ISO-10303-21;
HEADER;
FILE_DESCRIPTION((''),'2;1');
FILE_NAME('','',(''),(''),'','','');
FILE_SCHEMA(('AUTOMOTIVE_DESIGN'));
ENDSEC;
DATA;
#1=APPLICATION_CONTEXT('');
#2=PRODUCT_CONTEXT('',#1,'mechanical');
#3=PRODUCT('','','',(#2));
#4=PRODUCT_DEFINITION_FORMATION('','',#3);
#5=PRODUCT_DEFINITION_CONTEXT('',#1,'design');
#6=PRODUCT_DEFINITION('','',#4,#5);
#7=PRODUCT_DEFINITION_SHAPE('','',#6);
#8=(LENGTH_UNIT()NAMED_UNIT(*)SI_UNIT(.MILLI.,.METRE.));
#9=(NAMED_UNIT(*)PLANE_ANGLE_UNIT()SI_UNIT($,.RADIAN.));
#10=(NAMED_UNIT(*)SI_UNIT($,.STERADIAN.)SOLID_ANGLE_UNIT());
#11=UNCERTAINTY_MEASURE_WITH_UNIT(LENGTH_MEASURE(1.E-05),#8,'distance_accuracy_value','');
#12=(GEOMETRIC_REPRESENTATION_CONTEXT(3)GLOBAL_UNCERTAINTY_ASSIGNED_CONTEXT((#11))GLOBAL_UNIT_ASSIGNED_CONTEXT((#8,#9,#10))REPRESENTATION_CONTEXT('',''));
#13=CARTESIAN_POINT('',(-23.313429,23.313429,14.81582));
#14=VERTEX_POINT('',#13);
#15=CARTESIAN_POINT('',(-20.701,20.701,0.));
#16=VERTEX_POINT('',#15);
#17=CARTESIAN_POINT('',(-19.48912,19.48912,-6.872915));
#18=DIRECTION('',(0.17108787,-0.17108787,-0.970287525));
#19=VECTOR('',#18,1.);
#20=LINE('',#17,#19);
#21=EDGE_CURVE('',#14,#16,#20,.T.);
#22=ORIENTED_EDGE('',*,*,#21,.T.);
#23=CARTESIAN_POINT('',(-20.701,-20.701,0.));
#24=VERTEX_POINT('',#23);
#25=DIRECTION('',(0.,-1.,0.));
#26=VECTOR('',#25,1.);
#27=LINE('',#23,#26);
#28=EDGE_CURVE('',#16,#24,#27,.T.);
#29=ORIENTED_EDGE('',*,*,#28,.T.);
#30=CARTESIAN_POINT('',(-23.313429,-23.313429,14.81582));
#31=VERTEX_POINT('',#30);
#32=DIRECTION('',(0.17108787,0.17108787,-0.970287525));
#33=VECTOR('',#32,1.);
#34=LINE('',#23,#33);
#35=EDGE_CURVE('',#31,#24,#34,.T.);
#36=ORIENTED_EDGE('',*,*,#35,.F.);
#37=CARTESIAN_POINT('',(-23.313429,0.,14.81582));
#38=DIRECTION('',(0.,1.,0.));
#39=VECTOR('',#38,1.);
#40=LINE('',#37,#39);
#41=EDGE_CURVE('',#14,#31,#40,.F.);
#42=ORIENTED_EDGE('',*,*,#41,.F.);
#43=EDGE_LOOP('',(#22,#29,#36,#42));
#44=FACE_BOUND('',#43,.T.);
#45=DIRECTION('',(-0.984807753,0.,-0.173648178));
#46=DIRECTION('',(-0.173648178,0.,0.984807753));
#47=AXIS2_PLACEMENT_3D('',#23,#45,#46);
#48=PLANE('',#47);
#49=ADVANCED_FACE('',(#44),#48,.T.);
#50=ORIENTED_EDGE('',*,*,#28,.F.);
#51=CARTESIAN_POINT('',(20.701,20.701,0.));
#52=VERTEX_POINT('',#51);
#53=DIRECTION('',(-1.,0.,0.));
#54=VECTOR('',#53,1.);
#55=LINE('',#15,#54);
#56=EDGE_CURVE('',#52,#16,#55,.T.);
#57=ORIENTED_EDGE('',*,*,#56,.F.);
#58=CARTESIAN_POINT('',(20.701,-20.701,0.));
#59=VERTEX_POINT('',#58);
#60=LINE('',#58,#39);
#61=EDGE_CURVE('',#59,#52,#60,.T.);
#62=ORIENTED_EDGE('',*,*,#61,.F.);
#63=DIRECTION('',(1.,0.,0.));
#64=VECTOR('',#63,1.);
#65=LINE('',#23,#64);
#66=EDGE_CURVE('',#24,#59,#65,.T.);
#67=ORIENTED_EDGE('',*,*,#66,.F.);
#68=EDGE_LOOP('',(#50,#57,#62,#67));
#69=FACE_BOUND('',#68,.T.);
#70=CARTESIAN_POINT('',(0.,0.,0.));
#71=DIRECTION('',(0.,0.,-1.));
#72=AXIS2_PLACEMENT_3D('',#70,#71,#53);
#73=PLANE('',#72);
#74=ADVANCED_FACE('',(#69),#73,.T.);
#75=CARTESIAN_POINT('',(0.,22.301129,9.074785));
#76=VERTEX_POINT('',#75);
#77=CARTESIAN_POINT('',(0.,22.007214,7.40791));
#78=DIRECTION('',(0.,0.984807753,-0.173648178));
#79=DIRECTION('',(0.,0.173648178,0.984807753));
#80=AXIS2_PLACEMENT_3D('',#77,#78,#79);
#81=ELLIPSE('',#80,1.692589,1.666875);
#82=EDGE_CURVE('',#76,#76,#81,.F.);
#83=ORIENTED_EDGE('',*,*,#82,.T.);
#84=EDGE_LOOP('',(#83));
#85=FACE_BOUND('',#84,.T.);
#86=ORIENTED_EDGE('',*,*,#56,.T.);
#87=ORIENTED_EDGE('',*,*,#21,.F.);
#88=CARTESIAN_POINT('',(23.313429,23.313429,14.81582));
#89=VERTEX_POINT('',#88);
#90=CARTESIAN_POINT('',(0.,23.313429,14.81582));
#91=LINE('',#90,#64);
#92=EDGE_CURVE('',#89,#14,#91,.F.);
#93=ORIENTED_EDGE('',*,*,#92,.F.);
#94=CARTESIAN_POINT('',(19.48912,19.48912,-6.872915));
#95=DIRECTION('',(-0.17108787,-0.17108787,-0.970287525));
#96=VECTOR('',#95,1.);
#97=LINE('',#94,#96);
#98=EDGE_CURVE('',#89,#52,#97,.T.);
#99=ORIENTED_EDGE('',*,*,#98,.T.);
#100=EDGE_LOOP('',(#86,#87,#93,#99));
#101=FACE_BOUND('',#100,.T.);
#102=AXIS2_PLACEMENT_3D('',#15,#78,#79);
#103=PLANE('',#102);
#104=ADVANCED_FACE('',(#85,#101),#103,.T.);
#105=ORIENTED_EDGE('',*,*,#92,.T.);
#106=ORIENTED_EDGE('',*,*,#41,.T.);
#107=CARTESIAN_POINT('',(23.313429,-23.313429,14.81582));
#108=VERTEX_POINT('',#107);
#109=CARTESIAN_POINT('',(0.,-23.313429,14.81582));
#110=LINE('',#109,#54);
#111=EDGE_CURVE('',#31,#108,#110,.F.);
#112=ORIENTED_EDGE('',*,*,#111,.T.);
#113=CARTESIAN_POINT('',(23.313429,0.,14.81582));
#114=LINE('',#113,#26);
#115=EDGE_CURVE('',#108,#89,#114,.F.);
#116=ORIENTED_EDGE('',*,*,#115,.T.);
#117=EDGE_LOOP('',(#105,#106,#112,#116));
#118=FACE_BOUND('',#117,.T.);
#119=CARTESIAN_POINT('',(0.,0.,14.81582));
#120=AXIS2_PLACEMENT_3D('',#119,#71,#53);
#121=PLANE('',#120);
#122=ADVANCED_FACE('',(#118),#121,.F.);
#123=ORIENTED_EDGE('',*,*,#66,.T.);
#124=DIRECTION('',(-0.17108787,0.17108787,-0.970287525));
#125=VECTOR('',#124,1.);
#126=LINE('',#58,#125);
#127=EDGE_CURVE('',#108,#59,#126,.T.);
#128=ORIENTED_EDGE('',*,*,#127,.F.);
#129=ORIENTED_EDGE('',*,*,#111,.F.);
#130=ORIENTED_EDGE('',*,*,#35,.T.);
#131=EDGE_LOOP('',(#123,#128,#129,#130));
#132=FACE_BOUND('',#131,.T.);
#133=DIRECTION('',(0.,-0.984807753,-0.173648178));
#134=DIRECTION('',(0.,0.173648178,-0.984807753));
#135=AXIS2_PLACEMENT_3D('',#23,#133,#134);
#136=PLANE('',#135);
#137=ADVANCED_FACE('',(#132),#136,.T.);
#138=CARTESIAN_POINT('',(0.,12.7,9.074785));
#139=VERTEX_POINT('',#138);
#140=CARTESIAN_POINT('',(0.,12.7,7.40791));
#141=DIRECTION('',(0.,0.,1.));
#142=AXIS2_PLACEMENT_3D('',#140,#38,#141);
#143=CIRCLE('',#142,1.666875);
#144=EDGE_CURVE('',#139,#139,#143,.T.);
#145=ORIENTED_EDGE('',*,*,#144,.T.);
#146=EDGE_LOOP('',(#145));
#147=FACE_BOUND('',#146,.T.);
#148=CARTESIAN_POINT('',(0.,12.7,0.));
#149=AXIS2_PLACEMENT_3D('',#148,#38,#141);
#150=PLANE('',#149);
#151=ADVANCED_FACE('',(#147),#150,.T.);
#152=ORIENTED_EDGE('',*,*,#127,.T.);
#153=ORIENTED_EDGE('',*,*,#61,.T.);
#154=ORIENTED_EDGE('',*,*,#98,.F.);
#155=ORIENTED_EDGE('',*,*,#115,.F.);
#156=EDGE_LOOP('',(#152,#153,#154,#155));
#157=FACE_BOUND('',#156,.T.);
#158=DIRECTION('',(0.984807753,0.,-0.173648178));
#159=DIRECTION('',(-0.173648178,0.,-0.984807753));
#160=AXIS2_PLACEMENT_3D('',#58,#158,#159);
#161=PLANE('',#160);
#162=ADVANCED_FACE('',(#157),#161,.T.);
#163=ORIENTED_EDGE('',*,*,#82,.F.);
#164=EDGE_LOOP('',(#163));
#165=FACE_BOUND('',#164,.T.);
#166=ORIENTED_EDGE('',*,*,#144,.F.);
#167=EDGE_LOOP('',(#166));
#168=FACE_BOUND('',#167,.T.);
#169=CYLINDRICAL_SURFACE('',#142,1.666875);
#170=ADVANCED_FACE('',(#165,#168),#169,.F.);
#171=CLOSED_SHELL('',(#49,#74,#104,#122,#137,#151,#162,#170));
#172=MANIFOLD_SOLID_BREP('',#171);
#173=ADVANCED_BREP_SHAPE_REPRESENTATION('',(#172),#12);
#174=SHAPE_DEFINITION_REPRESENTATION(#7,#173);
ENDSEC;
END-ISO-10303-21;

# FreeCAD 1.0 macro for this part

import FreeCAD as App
import Part
import Sketcher
from FreeCAD import Vector
Q = App.Units.Quantity


def faces_at(feature, points):
    """Names of the faces that lie closest to the given points."""
    faces = feature.Shape.Faces
    near = lambda p: min(range(len(faces)), key=lambda i: faces[i].distToShape(Part.Vertex(*p))[0])
    return sorted({f"Face{near(p) + 1}" for p in points})

doc = App.newDocument("Part")
body = doc.addObject("PartDesign::Body", "Body")

sketch1 = doc.addObject("Sketcher::SketchObject", "Sketch")
body.addObject(sketch1)
sketch1.AttachmentSupport = (doc.XY_Plane, [""])
sketch1.MapMode = "FlatFace"
sketch1.addGeometry([
    Part.LineSegment(Vector(-20.701, 20.701, 0), Vector(-20.701, -20.701, 0)),
    Part.LineSegment(Vector(-20.701, -20.701, 0), Vector(20.701, -20.701, 0)),
    Part.LineSegment(Vector(20.701, -20.701, 0), Vector(20.701, 20.701, 0)),
    Part.LineSegment(Vector(20.701, 20.701, 0), Vector(-20.701, 20.701, 0)),
], False)
sketch1.addConstraint([
    Sketcher.Constraint("Coincident", 0, 2, 1, 1),
    Sketcher.Constraint("Coincident", 1, 2, 2, 1),
    Sketcher.Constraint("Coincident", 2, 2, 3, 1),
    Sketcher.Constraint("Coincident", 3, 2, 0, 1),
    Sketcher.Constraint("Vertical", 0),
    Sketcher.Constraint("Horizontal", 1),
    Sketcher.Constraint("Vertical", 2),
    Sketcher.Constraint("Horizontal", 3),
    Sketcher.Constraint("Symmetric", 0, 2, 2, 2, -1, 1),
    Sketcher.Constraint("Equal", 3, 0),
    Sketcher.Constraint("DistanceX", 1, 1, 1, 2, Q("1.63 in")),
])
pad1 = doc.addObject("PartDesign::Pad", "Pad")
body.addObject(pad1)
pad1.Profile = sketch1
pad1.Length = Q("0.5833 in")
doc.recompute()

draft = doc.addObject("PartDesign::Draft", "Draft")
body.addObject(draft)
draft.Base = (pad1, faces_at(pad1, [
    (0, -20.701, 7.408),
    (20.701, 0, 7.408),
    (0, 20.701, 7.408),
    (-20.701, 0, 7.408),
]))
draft.NeutralPlane = (doc.XY_Plane, [""])
draft.Angle = 10
draft.Reversed = True

sketch2 = doc.addObject("Sketcher::SketchObject", "Sketch001")
body.addObject(sketch2)
sketch2.AttachmentSupport = (doc.XZ_Plane, [""])
sketch2.MapMode = "FlatFace"
sketch2.AttachmentOffset = App.Placement(Vector(0, 0, -1 * 25.4), App.Rotation())
sketch2.addGeometry(Part.Circle(Vector(0, 7.40791, 0), Vector(0, 0, 1), 1.666875), False)
sketch2.addConstraint([
    Sketcher.Constraint("PointOnObject", 0, 3, -2),
    Sketcher.Constraint("Diameter", 0, 3.33375),
    Sketcher.Constraint("DistanceY", -1, 1, 0, 3, 7.40791),
])
pocket1 = doc.addObject("PartDesign::Pocket", "Pocket")
body.addObject(pocket1)
pocket1.Profile = sketch2
pocket1.Length = Q("0.5 in")
pocket1.Reversed = True

doc.recompute()
